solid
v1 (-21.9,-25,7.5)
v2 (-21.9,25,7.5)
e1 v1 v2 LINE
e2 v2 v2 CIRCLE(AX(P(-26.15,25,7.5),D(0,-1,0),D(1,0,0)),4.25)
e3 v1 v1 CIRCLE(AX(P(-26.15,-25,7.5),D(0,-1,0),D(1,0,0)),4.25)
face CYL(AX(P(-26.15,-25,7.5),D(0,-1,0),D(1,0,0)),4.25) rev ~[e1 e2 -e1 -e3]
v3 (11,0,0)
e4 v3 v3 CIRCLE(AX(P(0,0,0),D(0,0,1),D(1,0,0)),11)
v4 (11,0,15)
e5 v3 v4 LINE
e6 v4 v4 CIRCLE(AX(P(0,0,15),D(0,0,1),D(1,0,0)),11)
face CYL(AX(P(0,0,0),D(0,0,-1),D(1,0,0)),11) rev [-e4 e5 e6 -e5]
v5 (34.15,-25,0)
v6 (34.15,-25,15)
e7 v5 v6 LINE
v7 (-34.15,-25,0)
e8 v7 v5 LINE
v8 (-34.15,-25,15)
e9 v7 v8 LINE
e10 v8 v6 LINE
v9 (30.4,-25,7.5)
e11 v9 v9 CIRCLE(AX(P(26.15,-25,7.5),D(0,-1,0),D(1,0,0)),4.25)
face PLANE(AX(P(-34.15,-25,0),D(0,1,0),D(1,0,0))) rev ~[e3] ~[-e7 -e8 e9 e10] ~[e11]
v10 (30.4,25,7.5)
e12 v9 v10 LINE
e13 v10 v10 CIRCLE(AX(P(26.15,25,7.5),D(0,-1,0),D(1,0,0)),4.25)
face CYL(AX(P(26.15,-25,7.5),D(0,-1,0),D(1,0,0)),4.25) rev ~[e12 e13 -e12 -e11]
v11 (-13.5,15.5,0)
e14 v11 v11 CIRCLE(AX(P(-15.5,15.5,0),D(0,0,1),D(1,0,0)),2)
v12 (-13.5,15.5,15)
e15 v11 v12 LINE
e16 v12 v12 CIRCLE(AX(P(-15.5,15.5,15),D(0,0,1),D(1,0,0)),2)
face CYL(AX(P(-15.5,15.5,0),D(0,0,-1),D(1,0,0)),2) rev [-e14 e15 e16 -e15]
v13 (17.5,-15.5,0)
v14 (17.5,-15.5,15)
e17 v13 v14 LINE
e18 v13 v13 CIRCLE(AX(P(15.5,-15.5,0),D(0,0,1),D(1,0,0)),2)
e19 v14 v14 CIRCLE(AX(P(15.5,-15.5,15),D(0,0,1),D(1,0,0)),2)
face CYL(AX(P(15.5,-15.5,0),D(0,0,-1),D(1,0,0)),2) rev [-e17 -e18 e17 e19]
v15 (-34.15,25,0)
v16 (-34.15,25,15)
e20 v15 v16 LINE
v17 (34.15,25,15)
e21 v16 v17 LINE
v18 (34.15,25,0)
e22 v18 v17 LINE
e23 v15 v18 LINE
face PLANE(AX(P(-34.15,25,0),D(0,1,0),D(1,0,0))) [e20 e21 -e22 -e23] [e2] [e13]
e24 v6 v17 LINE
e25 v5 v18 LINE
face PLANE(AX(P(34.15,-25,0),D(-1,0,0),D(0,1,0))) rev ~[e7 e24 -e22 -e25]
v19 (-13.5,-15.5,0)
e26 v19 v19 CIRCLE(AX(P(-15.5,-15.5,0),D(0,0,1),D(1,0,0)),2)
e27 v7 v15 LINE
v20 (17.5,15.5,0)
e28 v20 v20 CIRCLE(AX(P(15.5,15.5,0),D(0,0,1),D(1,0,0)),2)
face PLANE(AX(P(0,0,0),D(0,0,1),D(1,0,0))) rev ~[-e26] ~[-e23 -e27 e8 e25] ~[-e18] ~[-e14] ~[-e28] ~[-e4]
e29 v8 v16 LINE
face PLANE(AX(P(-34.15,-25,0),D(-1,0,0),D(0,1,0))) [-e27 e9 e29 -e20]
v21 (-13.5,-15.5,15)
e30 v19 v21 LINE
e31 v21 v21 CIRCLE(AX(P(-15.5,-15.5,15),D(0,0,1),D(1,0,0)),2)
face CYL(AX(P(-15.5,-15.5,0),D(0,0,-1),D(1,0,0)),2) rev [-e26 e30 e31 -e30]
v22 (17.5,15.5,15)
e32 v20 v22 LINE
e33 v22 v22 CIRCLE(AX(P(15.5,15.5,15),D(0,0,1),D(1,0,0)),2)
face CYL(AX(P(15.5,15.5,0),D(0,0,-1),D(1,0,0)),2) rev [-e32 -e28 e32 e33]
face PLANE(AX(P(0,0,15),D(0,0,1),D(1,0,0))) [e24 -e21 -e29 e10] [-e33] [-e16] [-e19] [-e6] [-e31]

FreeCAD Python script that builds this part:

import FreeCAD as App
import Part
import Sketcher
Q = App.Units.Quantity

doc = App.newDocument("Part")
body = doc.addObject("PartDesign::Body", "Body")

# Sketch on XY plane
sketch1 = doc.addObject("Sketcher::SketchObject", "Sketch")
body.addObject(sketch1)
sketch1.AttachmentSupport = (doc.XY_Plane, [""])
sketch1.MapMode = "FlatFace"
sketch1.addGeometry(Part.LineSegment(App.Vector(-34.1, 25, 0), App.Vector(-34.1, -25, 0)), False)
sketch1.addGeometry(Part.LineSegment(App.Vector(-34.1, -25, 0), App.Vector(34.1, -25, 0)), False)
sketch1.addGeometry(Part.LineSegment(App.Vector(34.1, -25, 0), App.Vector(34.1, 25, 0)), False)
sketch1.addGeometry(Part.LineSegment(App.Vector(34.1, 25, 0), App.Vector(-34.1, 25, 0)), False)
sketch1.addGeometry(Part.Circle(App.Vector(-15.5, -15.5, 0), App.Vector(0, 0, 1), 2), False)
sketch1.addGeometry(Part.Circle(App.Vector(15.5, -15.5, 0), App.Vector(0, 0, 1), 2), False)
sketch1.addGeometry(Part.Circle(App.Vector(-15.5, 15.5, 0), App.Vector(0, 0, 1), 2), False)
sketch1.addGeometry(Part.Circle(App.Vector(0, 0, 0), App.Vector(0, 0, 1), 11), False)
sketch1.addGeometry(Part.Circle(App.Vector(15.5, 15.5, 0), App.Vector(0, 0, 1), 2), False)
sketch1.addConstraint(Sketcher.Constraint("Coincident", 0, 2, 1, 1))
sketch1.addConstraint(Sketcher.Constraint("Coincident", 1, 2, 2, 1))
sketch1.addConstraint(Sketcher.Constraint("Coincident", 2, 2, 3, 1))
sketch1.addConstraint(Sketcher.Constraint("Coincident", 3, 2, 0, 1))
sketch1.addConstraint(Sketcher.Constraint("Vertical", 0))
sketch1.addConstraint(Sketcher.Constraint("Horizontal", 1))
sketch1.addConstraint(Sketcher.Constraint("Vertical", 2))
sketch1.addConstraint(Sketcher.Constraint("Horizontal", 3))
sketch1.addConstraint(Sketcher.Constraint("Coincident", 7, 3, -1, 1))
sketch1.addConstraint(Sketcher.Constraint("Equal", 4, 5))
sketch1.addConstraint(Sketcher.Constraint("Equal", 5, 6))
sketch1.addConstraint(Sketcher.Constraint("Equal", 6, 8))
sketch1.addConstraint(Sketcher.Constraint("Symmetric", 5, 3, 6, 3, -1, 1))
sketch1.addConstraint(Sketcher.Constraint("Symmetric", 4, 3, 8, 3, -1, 1))
sketch1.addConstraint(Sketcher.Constraint("Symmetric", 0, 2, 2, 2, -1, 1))
sketch1.addConstraint(Sketcher.Constraint("Symmetric", 4, 3, 5, 3, -2))
sketch1.addConstraint(Sketcher.Constraint("Diameter", 4, Q("4 mm")))
sketch1.addConstraint(Sketcher.Constraint("Diameter", 7, Q("22 mm")))
sketch1.addConstraint(Sketcher.Constraint("DistanceY", 0, 2, 0, 1, Q("50 mm")))
sketch1.addConstraint(Sketcher.Constraint("DistanceX", 1, 1, 1, 2, Q("68.3 mm")))
sketch1.addConstraint(Sketcher.Constraint("DistanceX", 4, 3, 5, 3, Q("31 mm")))
sketch1.addConstraint(Sketcher.Constraint("DistanceY", 4, 3, 6, 3, Q("31 mm")))
pad1 = doc.addObject("PartDesign::Pad", "Pad")
body.addObject(pad1)
pad1.Profile = sketch1
pad1.Length = 15

# Sketch on XZ plane
sketch2 = doc.addObject("Sketcher::SketchObject", "Sketch001")
body.addObject(sketch2)
sketch2.AttachmentSupport = (doc.XZ_Plane, [""])
sketch2.MapMode = "FlatFace"
sketch2.AttachmentOffset = App.Placement(App.Vector(0, 0, 25), App.Rotation())
sketch2.addGeometry(Part.Circle(App.Vector(-26.1, 7.5, 0), App.Vector(0, 0, 1), 4.2), False)
sketch2.addGeometry(Part.Circle(App.Vector(26.1, 7.5, 0), App.Vector(0, 0, 1), 4.2), False)
sketch2.addConstraint(Sketcher.Constraint("Equal", 0, 1))
sketch2.addConstraint(Sketcher.Constraint("Symmetric", 0, 3, 1, 3, -2))
sketch2.addConstraint(Sketcher.Constraint("Diameter", 0, Q("8.5 mm")))
sketch2.addConstraint(Sketcher.Constraint("DistanceY", -1, 1, 0, 3, Q("7.5 mm")))
sketch2.addConstraint(Sketcher.Constraint("DistanceX", 0, 3, 1, 3, Q("52.3 mm")))
pocket1 = doc.addObject("PartDesign::Pocket", "Pocket")
body.addObject(pocket1)
pocket1.Profile = sketch2
pocket1.Type = "ThroughAll"

doc.recompute()
